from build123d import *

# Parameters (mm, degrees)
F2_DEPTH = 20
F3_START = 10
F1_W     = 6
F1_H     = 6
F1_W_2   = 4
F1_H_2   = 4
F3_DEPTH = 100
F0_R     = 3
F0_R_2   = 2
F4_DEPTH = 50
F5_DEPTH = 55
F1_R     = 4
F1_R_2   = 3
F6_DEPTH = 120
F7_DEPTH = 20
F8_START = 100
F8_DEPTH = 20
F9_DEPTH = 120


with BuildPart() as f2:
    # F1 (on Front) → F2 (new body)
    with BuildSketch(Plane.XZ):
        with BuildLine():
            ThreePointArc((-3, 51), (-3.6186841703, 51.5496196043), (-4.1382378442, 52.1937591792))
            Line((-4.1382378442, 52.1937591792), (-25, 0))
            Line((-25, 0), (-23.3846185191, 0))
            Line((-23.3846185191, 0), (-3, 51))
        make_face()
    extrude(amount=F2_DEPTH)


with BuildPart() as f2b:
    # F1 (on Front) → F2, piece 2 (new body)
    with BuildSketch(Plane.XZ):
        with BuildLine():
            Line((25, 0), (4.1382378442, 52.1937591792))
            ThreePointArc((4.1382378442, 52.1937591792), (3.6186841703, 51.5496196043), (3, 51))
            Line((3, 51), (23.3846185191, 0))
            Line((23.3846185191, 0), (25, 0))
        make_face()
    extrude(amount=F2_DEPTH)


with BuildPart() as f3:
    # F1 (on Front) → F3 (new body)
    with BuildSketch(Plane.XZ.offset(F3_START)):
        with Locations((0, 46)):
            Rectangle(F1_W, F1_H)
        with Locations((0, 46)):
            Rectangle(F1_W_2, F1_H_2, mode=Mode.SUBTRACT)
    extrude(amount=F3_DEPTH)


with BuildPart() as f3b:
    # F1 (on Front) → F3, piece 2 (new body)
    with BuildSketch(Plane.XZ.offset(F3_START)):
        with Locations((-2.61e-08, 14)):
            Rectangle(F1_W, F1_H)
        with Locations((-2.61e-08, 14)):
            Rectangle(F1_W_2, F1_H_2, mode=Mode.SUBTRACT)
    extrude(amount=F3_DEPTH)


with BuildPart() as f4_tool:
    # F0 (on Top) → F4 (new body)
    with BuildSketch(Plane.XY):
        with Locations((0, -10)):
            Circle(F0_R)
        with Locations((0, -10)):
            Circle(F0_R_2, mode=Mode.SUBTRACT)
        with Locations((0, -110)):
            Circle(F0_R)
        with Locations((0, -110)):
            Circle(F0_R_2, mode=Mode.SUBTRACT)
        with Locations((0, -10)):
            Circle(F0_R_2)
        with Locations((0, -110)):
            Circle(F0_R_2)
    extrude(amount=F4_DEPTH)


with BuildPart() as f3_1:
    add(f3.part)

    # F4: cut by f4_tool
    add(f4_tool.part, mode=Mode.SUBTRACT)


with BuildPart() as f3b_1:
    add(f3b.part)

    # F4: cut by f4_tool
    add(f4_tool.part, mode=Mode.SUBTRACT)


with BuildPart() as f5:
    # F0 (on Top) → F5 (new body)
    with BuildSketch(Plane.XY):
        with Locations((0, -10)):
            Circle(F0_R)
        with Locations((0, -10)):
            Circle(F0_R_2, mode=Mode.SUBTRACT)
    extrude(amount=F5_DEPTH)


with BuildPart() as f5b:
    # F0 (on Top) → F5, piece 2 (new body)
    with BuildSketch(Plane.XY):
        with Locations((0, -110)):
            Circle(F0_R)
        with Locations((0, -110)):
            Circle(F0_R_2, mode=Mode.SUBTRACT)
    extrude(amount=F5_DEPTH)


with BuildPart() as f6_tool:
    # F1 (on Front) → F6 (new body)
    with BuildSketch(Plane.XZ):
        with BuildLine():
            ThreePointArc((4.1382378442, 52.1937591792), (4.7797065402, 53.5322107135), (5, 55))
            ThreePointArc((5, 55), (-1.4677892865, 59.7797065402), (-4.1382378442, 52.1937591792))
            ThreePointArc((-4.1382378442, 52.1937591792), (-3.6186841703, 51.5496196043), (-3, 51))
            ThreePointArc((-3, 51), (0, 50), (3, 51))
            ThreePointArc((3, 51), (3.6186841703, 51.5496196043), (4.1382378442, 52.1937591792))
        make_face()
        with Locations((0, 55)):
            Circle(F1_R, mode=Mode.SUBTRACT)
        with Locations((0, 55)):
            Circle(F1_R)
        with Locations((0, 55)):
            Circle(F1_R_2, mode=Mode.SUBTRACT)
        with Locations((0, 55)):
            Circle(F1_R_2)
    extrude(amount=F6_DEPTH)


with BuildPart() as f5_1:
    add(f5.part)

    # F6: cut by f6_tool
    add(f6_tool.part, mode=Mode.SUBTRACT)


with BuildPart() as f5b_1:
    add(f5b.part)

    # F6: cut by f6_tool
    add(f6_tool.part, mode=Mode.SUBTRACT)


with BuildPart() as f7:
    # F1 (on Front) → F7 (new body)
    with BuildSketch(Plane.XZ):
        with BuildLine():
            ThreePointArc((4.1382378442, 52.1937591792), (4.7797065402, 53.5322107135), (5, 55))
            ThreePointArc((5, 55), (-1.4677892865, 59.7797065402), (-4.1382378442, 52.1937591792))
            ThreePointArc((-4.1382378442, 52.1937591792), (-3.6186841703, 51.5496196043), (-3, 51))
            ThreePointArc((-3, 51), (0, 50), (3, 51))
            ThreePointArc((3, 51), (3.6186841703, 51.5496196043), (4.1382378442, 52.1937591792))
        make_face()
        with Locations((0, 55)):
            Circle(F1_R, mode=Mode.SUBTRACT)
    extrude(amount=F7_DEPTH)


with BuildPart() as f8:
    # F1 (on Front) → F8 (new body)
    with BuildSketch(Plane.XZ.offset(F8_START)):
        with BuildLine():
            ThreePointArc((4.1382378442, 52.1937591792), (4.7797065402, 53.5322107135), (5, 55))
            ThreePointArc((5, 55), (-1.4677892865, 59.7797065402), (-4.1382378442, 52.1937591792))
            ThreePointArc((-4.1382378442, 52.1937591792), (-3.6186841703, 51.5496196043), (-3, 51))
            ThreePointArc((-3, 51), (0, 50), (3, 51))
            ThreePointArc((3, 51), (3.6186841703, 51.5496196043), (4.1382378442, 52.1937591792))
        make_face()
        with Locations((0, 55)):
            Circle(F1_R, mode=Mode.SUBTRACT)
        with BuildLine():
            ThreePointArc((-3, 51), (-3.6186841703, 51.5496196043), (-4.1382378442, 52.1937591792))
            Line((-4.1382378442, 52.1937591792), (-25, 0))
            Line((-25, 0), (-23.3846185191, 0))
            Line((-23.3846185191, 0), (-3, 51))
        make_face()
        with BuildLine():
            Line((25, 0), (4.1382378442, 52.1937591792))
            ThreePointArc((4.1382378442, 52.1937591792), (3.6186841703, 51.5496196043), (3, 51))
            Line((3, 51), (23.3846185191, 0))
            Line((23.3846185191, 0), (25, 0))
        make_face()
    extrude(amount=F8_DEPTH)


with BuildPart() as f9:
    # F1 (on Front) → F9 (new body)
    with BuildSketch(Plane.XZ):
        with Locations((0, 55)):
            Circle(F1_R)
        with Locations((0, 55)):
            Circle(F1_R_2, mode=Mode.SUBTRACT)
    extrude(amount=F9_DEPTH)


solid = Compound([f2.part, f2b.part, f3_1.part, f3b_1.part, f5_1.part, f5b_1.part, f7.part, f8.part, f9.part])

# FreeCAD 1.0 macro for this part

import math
import FreeCAD as App
import Part
import Sketcher

V = App.Vector
Q = App.Units.Quantity

doc = App.newDocument("Part")
body = doc.addObject("PartDesign::Body", "Body")

# Sketch on XZ plane
sketch1 = body.newObject("Sketcher::SketchObject", "Sketch")
sketch1.AttachmentSupport = (doc.getObject("XZ_Plane"), [""])
sketch1.MapMode = "FlatFace"
sketch1.addGeometry(Part.ArcOfCircle(Part.Circle(V(0, 55, 0), V(0, 0, 1), 5), math.radians(-145.857839), math.radians(-126.869898)), False)
sketch1.addGeometry(Part.LineSegment(V(-4.138238, 52.193759, 0), V(-25, 0, 0)), False)
sketch1.addGeometry(Part.LineSegment(V(-25, 0, 0), V(-23.384619, 0, 0)), False)
sketch1.addGeometry(Part.LineSegment(V(-23.384619, 0, 0), V(-3, 51, 0)), False)
sketch1.addConstraint(Sketcher.Constraint("Coincident", 0, 1, 1, 1))
sketch1.addConstraint(Sketcher.Constraint("Coincident", 1, 2, 2, 1))
sketch1.addConstraint(Sketcher.Constraint("Coincident", 2, 2, 3, 1))
sketch1.addConstraint(Sketcher.Constraint("Coincident", 3, 2, 0, 2))
sketch1.addConstraint(Sketcher.Constraint("Horizontal", 2))
sketch1.addConstraint(Sketcher.Constraint("PointOnObject", 0, 3, -2))
sketch1.addConstraint(Sketcher.Constraint("PointOnObject", 1, 2, -1))
sketch1.addConstraint(Sketcher.Constraint("Parallel", 1, 3))
sketch1.addConstraint(Sketcher.Constraint("Radius", 0, Q("5 mm")))
sketch1.addConstraint(Sketcher.Constraint("DistanceY", -1, 1, 0, 3, Q("55 mm")))
sketch1.addConstraint(Sketcher.Constraint("DistanceX", 1, 2, -1, 1, Q("25 mm")))
sketch1.addConstraint(Sketcher.Constraint("DistanceX", 3, 2, -1, 1, Q("3 mm")))
sketch1.addConstraint(Sketcher.Constraint("DistanceX", 2, 1, 2, 2, Q("1.615381 mm")))
pad1 = body.newObject("PartDesign::Pad", "Pad")
pad1.Profile = sketch1
pad1.Length = 20
body2 = doc.addObject("PartDesign::Body", "Body001")

# Sketch on XZ plane
sketch2 = body2.newObject("Sketcher::SketchObject", "Sketch001")
sketch2.AttachmentSupport = (doc.getObject("XZ_Plane001"), [""])
sketch2.MapMode = "FlatFace"
sketch2.addGeometry(Part.LineSegment(V(25, 0, 0), V(4.138238, 52.193759, 0)), False)
sketch2.addGeometry(Part.ArcOfCircle(Part.Circle(V(0, 55, 0), V(0, 0, 1), 5), math.radians(-53.130102), math.radians(-34.142161)), False)
sketch2.addGeometry(Part.LineSegment(V(3, 51, 0), V(23.384619, 0, 0)), False)
sketch2.addGeometry(Part.LineSegment(V(23.384619, 0, 0), V(25, 0, 0)), False)
sketch2.addConstraint(Sketcher.Constraint("Coincident", 0, 2, 1, 2))
sketch2.addConstraint(Sketcher.Constraint("Coincident", 1, 1, 2, 1))
sketch2.addConstraint(Sketcher.Constraint("Coincident", 2, 2, 3, 1))
sketch2.addConstraint(Sketcher.Constraint("Coincident", 3, 2, 0, 1))
sketch2.addConstraint(Sketcher.Constraint("Horizontal", 3))
sketch2.addConstraint(Sketcher.Constraint("PointOnObject", 1, 3, -2))
sketch2.addConstraint(Sketcher.Constraint("PointOnObject", 2, 2, -1))
sketch2.addConstraint(Sketcher.Constraint("Parallel", 0, 2))
sketch2.addConstraint(Sketcher.Constraint("Radius", 1, Q("5 mm")))
sketch2.addConstraint(Sketcher.Constraint("DistanceY", -1, 1, 1, 3, Q("55 mm")))
sketch2.addConstraint(Sketcher.Constraint("DistanceX", -1, 1, 1, 1, Q("3 mm")))
sketch2.addConstraint(Sketcher.Constraint("DistanceX", -1, 1, 3, 2, Q("25 mm")))
sketch2.addConstraint(Sketcher.Constraint("DistanceX", 3, 1, 3, 2, Q("1.615381 mm")))
pad2 = body2.newObject("PartDesign::Pad", "Pad001")
pad2.Profile = sketch2
pad2.Length = 20
body3 = doc.addObject("PartDesign::Body", "Body002")

# Sketch on XZ plane
sketch3 = body3.newObject("Sketcher::SketchObject", "Sketch002")
sketch3.AttachmentSupport = (doc.getObject("XZ_Plane002"), [""])
sketch3.MapMode = "FlatFace"
sketch3.AttachmentOffset = App.Placement(V(0, 0, 10), App.Rotation())
sketch3.addGeometry(Part.LineSegment(V(-3, 49, 0), V(-3, 43, 0)), False)
sketch3.addGeometry(Part.LineSegment(V(-3, 43, 0), V(3, 43, 0)), False)
sketch3.addGeometry(Part.LineSegment(V(3, 43, 0), V(3, 49, 0)), False)
sketch3.addGeometry(Part.LineSegment(V(3, 49, 0), V(-3, 49, 0)), False)
sketch3.addGeometry(Part.LineSegment(V(2, 44, 0), V(-2, 44, 0)), False)
sketch3.addGeometry(Part.LineSegment(V(-2, 44, 0), V(-2, 48, 0)), False)
sketch3.addGeometry(Part.LineSegment(V(-2, 48, 0), V(2, 48, 0)), False)
sketch3.addGeometry(Part.LineSegment(V(2, 48, 0), V(2, 44, 0)), False)
sketch3.addConstraint(Sketcher.Constraint("Coincident", 0, 2, 1, 1))
sketch3.addConstraint(Sketcher.Constraint("Coincident", 1, 2, 2, 1))
sketch3.addConstraint(Sketcher.Constraint("Coincident", 2, 2, 3, 1))
sketch3.addConstraint(Sketcher.Constraint("Coincident", 3, 2, 0, 1))
sketch3.addConstraint(Sketcher.Constraint("Coincident", 4, 2, 5, 1))
sketch3.addConstraint(Sketcher.Constraint("Coincident", 5, 2, 6, 1))
sketch3.addConstraint(Sketcher.Constraint("Coincident", 6, 2, 7, 1))
sketch3.addConstraint(Sketcher.Constraint("Coincident", 7, 2, 4, 1))
sketch3.addConstraint(Sketcher.Constraint("Vertical", 0))
sketch3.addConstraint(Sketcher.Constraint("Horizontal", 1))
sketch3.addConstraint(Sketcher.Constraint("Vertical", 2))
sketch3.addConstraint(Sketcher.Constraint("Horizontal", 3))
sketch3.addConstraint(Sketcher.Constraint("Horizontal", 4))
sketch3.addConstraint(Sketcher.Constraint("Vertical", 5))
sketch3.addConstraint(Sketcher.Constraint("Horizontal", 6))
sketch3.addConstraint(Sketcher.Constraint("Vertical", 7))
sketch3.addConstraint(Sketcher.Constraint("Equal", 3, 0))
sketch3.addConstraint(Sketcher.Constraint("Equal", 6, 5))
sketch3.addConstraint(Sketcher.Constraint("DistanceX", 1, 1, 1, 2, Q("6 mm")))
sketch3.addConstraint(Sketcher.Constraint("DistanceX", 4, 2, 4, 1, Q("4 mm")))
sketch3.addConstraint(Sketcher.Constraint("DistanceX", 0, 2, -1, 1, Q("3 mm")))
sketch3.addConstraint(Sketcher.Constraint("DistanceY", -1, 1, 0, 2, Q("43 mm")))
sketch3.addConstraint(Sketcher.Constraint("DistanceX", 4, 2, -1, 1, Q("2 mm")))
sketch3.addConstraint(Sketcher.Constraint("DistanceY", -1, 1, 4, 2, Q("44 mm")))
pad3 = body3.newObject("PartDesign::Pad", "Pad002")
pad3.Profile = sketch3
pad3.Length = 100
body4 = doc.addObject("PartDesign::Body", "Body003")

# Sketch on XZ plane
sketch4 = body4.newObject("Sketcher::SketchObject", "Sketch003")
sketch4.AttachmentSupport = (doc.getObject("XZ_Plane003"), [""])
sketch4.MapMode = "FlatFace"
sketch4.AttachmentOffset = App.Placement(V(0, 0, 10), App.Rotation())
sketch4.addGeometry(Part.LineSegment(V(-3, 17, 0), V(-3, 11, 0)), False)
sketch4.addGeometry(Part.LineSegment(V(-3, 11, 0), V(3, 11, 0)), False)
sketch4.addGeometry(Part.LineSegment(V(3, 11, 0), V(3, 17, 0)), False)
sketch4.addGeometry(Part.LineSegment(V(3, 17, 0), V(-3, 17, 0)), False)
sketch4.addGeometry(Part.LineSegment(V(2, 12, 0), V(-2, 12, 0)), False)
sketch4.addGeometry(Part.LineSegment(V(-2, 12, 0), V(-2, 16, 0)), False)
sketch4.addGeometry(Part.LineSegment(V(-2, 16, 0), V(2, 16, 0)), False)
sketch4.addGeometry(Part.LineSegment(V(2, 16, 0), V(2, 12, 0)), False)
sketch4.addConstraint(Sketcher.Constraint("Coincident", 0, 2, 1, 1))
sketch4.addConstraint(Sketcher.Constraint("Coincident", 1, 2, 2, 1))
sketch4.addConstraint(Sketcher.Constraint("Coincident", 2, 2, 3, 1))
sketch4.addConstraint(Sketcher.Constraint("Coincident", 3, 2, 0, 1))
sketch4.addConstraint(Sketcher.Constraint("Coincident", 4, 2, 5, 1))
sketch4.addConstraint(Sketcher.Constraint("Coincident", 5, 2, 6, 1))
sketch4.addConstraint(Sketcher.Constraint("Coincident", 6, 2, 7, 1))
sketch4.addConstraint(Sketcher.Constraint("Coincident", 7, 2, 4, 1))
sketch4.addConstraint(Sketcher.Constraint("Vertical", 0))
sketch4.addConstraint(Sketcher.Constraint("Horizontal", 1))
sketch4.addConstraint(Sketcher.Constraint("Vertical", 2))
sketch4.addConstraint(Sketcher.Constraint("Horizontal", 3))
sketch4.addConstraint(Sketcher.Constraint("Horizontal", 4))
sketch4.addConstraint(Sketcher.Constraint("Vertical", 5))
sketch4.addConstraint(Sketcher.Constraint("Horizontal", 6))
sketch4.addConstraint(Sketcher.Constraint("Vertical", 7))
sketch4.addConstraint(Sketcher.Constraint("Equal", 3, 0))
sketch4.addConstraint(Sketcher.Constraint("Equal", 6, 5))
sketch4.addConstraint(Sketcher.Constraint("DistanceX", 1, 1, 1, 2, Q("6 mm")))
sketch4.addConstraint(Sketcher.Constraint("DistanceX", 4, 2, 4, 1, Q("4 mm")))
sketch4.addConstraint(Sketcher.Constraint("DistanceX", 0, 2, -1, 1, Q("3 mm")))
sketch4.addConstraint(Sketcher.Constraint("DistanceY", -1, 1, 0, 2, Q("11 mm")))
sketch4.addConstraint(Sketcher.Constraint("DistanceX", 4, 2, -1, 1, Q("2 mm")))
sketch4.addConstraint(Sketcher.Constraint("DistanceY", -1, 1, 4, 2, Q("12 mm")))
pad4 = body4.newObject("PartDesign::Pad", "Pad003")
pad4.Profile = sketch4
pad4.Length = 100
body5 = doc.addObject("PartDesign::Body", "Body004")
body5.AllowCompound = True

# Sketch on XY plane
sketch5 = body5.newObject("Sketcher::SketchObject", "Sketch004")
sketch5.AttachmentSupport = (doc.getObject("XY_Plane004"), [""])
sketch5.MapMode = "FlatFace"
sketch5.addGeometry(Part.Circle(V(0, -10, 0), V(0, 0, 1), 3), False)
sketch5.addGeometry(Part.Circle(V(0, -110, 0), V(0, 0, 1), 3), False)
sketch5.addConstraint(Sketcher.Constraint("Equal", 0, 1))
sketch5.addConstraint(Sketcher.Constraint("PointOnObject", 0, 3, -2))
sketch5.addConstraint(Sketcher.Constraint("PointOnObject", 1, 3, -2))
sketch5.addConstraint(Sketcher.Constraint("Diameter", 0, Q("6 mm")))
sketch5.addConstraint(Sketcher.Constraint("DistanceY", 0, 3, -1, 1, Q("10 mm")))
sketch5.addConstraint(Sketcher.Constraint("DistanceY", 1, 3, -1, 1, Q("110 mm")))
pad5 = body5.newObject("PartDesign::Pad", "Pad004")
pad5.Profile = sketch5
pad5.Length = 50
doc.recompute()

body6 = doc.addObject("PartDesign::Body", "Body005")
body6.BaseFeature = body5
boolean = body3.newObject("PartDesign::Boolean", "Boolean")
boolean.Type = "Cut"
boolean.addObjects([body6])
doc.recompute()

boolean2 = body4.newObject("PartDesign::Boolean", "Boolean001")
boolean2.Type = "Cut"
boolean2.addObjects([body5])
body7 = doc.addObject("PartDesign::Body", "Body006")

# Sketch on XY plane
sketch6 = body7.newObject("Sketcher::SketchObject", "Sketch005")
sketch6.AttachmentSupport = (doc.getObject("XY_Plane006"), [""])
sketch6.MapMode = "FlatFace"
sketch6.addGeometry(Part.Circle(V(0, -10, 0), V(0, 0, 1), 3), False)
sketch6.addGeometry(Part.Circle(V(0, -10, 0), V(0, 0, 1), 2), False)
sketch6.addConstraint(Sketcher.Constraint("Coincident", 1, 3, 0, 3))
sketch6.addConstraint(Sketcher.Constraint("PointOnObject", 0, 3, -2))
sketch6.addConstraint(Sketcher.Constraint("Diameter", 0, Q("6 mm")))
sketch6.addConstraint(Sketcher.Constraint("Diameter", 1, Q("4 mm")))
sketch6.addConstraint(Sketcher.Constraint("DistanceY", 0, 3, -1, 1, Q("10 mm")))
pad6 = body7.newObject("PartDesign::Pad", "Pad005")
pad6.Profile = sketch6
pad6.Length = 55
body8 = doc.addObject("PartDesign::Body", "Body007")

# Sketch on XY plane
sketch7 = body8.newObject("Sketcher::SketchObject", "Sketch006")
sketch7.AttachmentSupport = (doc.getObject("XY_Plane007"), [""])
sketch7.MapMode = "FlatFace"
sketch7.addGeometry(Part.Circle(V(0, -110, 0), V(0, 0, 1), 3), False)
sketch7.addGeometry(Part.Circle(V(0, -110, 0), V(0, 0, 1), 2), False)
sketch7.addConstraint(Sketcher.Constraint("Coincident", 1, 3, 0, 3))
sketch7.addConstraint(Sketcher.Constraint("PointOnObject", 0, 3, -2))
sketch7.addConstraint(Sketcher.Constraint("Diameter", 0, Q("6 mm")))
sketch7.addConstraint(Sketcher.Constraint("Diameter", 1, Q("4 mm")))
sketch7.addConstraint(Sketcher.Constraint("DistanceY", 0, 3, -1, 1, Q("110 mm")))
pad7 = body8.newObject("PartDesign::Pad", "Pad006")
pad7.Profile = sketch7
pad7.Length = 55
body9 = doc.addObject("PartDesign::Body", "Body008")

# Sketch on XZ plane
sketch8 = body9.newObject("Sketcher::SketchObject", "Sketch007")
sketch8.AttachmentSupport = (doc.getObject("XZ_Plane008"), [""])
sketch8.MapMode = "FlatFace"
sketch8.addGeometry(Part.ArcOfCircle(Part.Circle(V(0, 55, 0), V(0, 0, 1), 5), math.radians(-34.142161), math.radians(0)), False)
sketch8.addGeometry(Part.ArcOfCircle(Part.Circle(V(0, 55, 0), V(0, 0, 1), 5), math.radians(0), math.radians(214.142161)), False)
sketch8.addGeometry(Part.ArcOfCircle(Part.Circle(V(0, 55, 0), V(0, 0, 1), 5), math.radians(-145.857839), math.radians(-126.869898)), False)
sketch8.addGeometry(Part.ArcOfCircle(Part.Circle(V(0, 55, 0), V(0, 0, 1), 5), math.radians(-126.869898), math.radians(-53.130102)), False)
sketch8.addGeometry(Part.ArcOfCircle(Part.Circle(V(0, 55, 0), V(0, 0, 1), 5), math.radians(-53.130102), math.radians(-34.142161)), False)
sketch8.addConstraint(Sketcher.Constraint("Tangent", 0, 2, 1, 1))
sketch8.addConstraint(Sketcher.Constraint("Tangent", 1, 2, 2, 1))
sketch8.addConstraint(Sketcher.Constraint("Tangent", 2, 2, 3, 1))
sketch8.addConstraint(Sketcher.Constraint("Tangent", 3, 2, 4, 1))
sketch8.addConstraint(Sketcher.Constraint("Tangent", 4, 2, 0, 1))
sketch8.addConstraint(Sketcher.Constraint("Coincident", 2, 3, 0, 3))
sketch8.addConstraint(Sketcher.Constraint("Symmetric", 2, 2, 3, 2, -2))
sketch8.addConstraint(Sketcher.Constraint("Horizontal", 4, 3, 0, 2))
sketch8.addConstraint(Sketcher.Constraint("Horizontal", 1, 2, 4, 2))
sketch8.addConstraint(Sketcher.Constraint("Radius", 0, Q("5 mm")))
sketch8.addConstraint(Sketcher.Constraint("DistanceY", -1, 1, 0, 3, Q("55 mm")))
sketch8.addConstraint(Sketcher.Constraint("DistanceX", 2, 2, -1, 1, Q("3 mm")))
sketch8.addConstraint(Sketcher.Constraint("DistanceY", -1, 1, 1, 2, Q("52.193759 mm")))
pad8 = body9.newObject("PartDesign::Pad", "Pad007")
pad8.Profile = sketch8
pad8.Length = 120
doc.recompute()

body10 = doc.addObject("PartDesign::Body", "Body009")
body10.BaseFeature = body9
boolean3 = body7.newObject("PartDesign::Boolean", "Boolean002")
boolean3.Type = "Cut"
boolean3.addObjects([body10])
doc.recompute()

boolean4 = body8.newObject("PartDesign::Boolean", "Boolean003")
boolean4.Type = "Cut"
boolean4.addObjects([body9])
body11 = doc.addObject("PartDesign::Body", "Body010")

# Sketch on XZ plane
sketch9 = body11.newObject("Sketcher::SketchObject", "Sketch008")
sketch9.AttachmentSupport = (doc.getObject("XZ_Plane010"), [""])
sketch9.MapMode = "FlatFace"
sketch9.addGeometry(Part.ArcOfCircle(Part.Circle(V(0, 55, 0), V(0, 0, 1), 5), math.radians(-34.142161), math.radians(0)), False)
sketch9.addGeometry(Part.ArcOfCircle(Part.Circle(V(0, 55, 0), V(0, 0, 1), 5), math.radians(0), math.radians(214.142161)), False)
sketch9.addGeometry(Part.ArcOfCircle(Part.Circle(V(0, 55, 0), V(0, 0, 1), 5), math.radians(-145.857839), math.radians(-126.869898)), False)
sketch9.addGeometry(Part.ArcOfCircle(Part.Circle(V(0, 55, 0), V(0, 0, 1), 5), math.radians(-126.869898), math.radians(-53.130102)), False)
sketch9.addGeometry(Part.ArcOfCircle(Part.Circle(V(0, 55, 0), V(0, 0, 1), 5), math.radians(-53.130102), math.radians(-34.142161)), False)
sketch9.addGeometry(Part.Circle(V(0, 55, 0), V(0, 0, 1), 4), False)
sketch9.addConstraint(Sketcher.Constraint("Tangent", 0, 2, 1, 1))
sketch9.addConstraint(Sketcher.Constraint("Tangent", 1, 2, 2, 1))
sketch9.addConstraint(Sketcher.Constraint("Tangent", 2, 2, 3, 1))
sketch9.addConstraint(Sketcher.Constraint("Tangent", 3, 2, 4, 1))
sketch9.addConstraint(Sketcher.Constraint("Tangent", 4, 2, 0, 1))
sketch9.addConstraint(Sketcher.Constraint("Coincident", 2, 3, 0, 3))
sketch9.addConstraint(Sketcher.Constraint("Coincident", 5, 3, 0, 3))
sketch9.addConstraint(Sketcher.Constraint("Symmetric", 2, 2, 3, 2, -2))
sketch9.addConstraint(Sketcher.Constraint("Horizontal", 5, 3, 0, 2))
sketch9.addConstraint(Sketcher.Constraint("Horizontal", 1, 2, 4, 2))
sketch9.addConstraint(Sketcher.Constraint("Diameter", 5, Q("8 mm")))
sketch9.addConstraint(Sketcher.Constraint("Radius", 0, Q("5 mm")))
sketch9.addConstraint(Sketcher.Constraint("DistanceY", -1, 1, 0, 3, Q("55 mm")))
sketch9.addConstraint(Sketcher.Constraint("DistanceX", 2, 2, -1, 1, Q("3 mm")))
sketch9.addConstraint(Sketcher.Constraint("DistanceY", -1, 1, 1, 2, Q("52.193759 mm")))
pad9 = body11.newObject("PartDesign::Pad", "Pad008")
pad9.Profile = sketch9
pad9.Length = 20
body12 = doc.addObject("PartDesign::Body", "Body011")

# Sketch on XZ plane
sketch10 = body12.newObject("Sketcher::SketchObject", "Sketch009")
sketch10.AttachmentSupport = (doc.getObject("XZ_Plane011"), [""])
sketch10.MapMode = "FlatFace"
sketch10.AttachmentOffset = App.Placement(V(0, 0, 100), App.Rotation())
sketch10.addGeometry(Part.ArcOfCircle(Part.Circle(V(0, 55, 0), V(0, 0, 1), 5), math.radians(-34.142161), math.radians(0)), False)
sketch10.addGeometry(Part.ArcOfCircle(Part.Circle(V(0, 55, 0), V(0, 0, 1), 5), math.radians(0), math.radians(214.142161)), False)
sketch10.addGeometry(Part.LineSegment(V(-4.138238, 52.193759, 0), V(-25, 0, 0)), False)
sketch10.addGeometry(Part.LineSegment(V(-25, 0, 0), V(-23.384619, 0, 0)), False)
sketch10.addGeometry(Part.LineSegment(V(-23.384619, 0, 0), V(-3, 51, 0)), False)
sketch10.addGeometry(Part.ArcOfCircle(Part.Circle(V(0, 55, 0), V(0, 0, 1), 5), math.radians(-126.869898), math.radians(-53.130102)), False)
sketch10.addGeometry(Part.LineSegment(V(3, 51, 0), V(23.384619, 0, 0)), False)
sketch10.addGeometry(Part.LineSegment(V(23.384619, 0, 0), V(25, 0, 0)), False)
sketch10.addGeometry(Part.LineSegment(V(25, 0, 0), V(4.138238, 52.193759, 0)), False)
sketch10.addGeometry(Part.Circle(V(0, 55, 0), V(0, 0, 1), 4), False)
sketch10.addConstraint(Sketcher.Constraint("Tangent", 0, 2, 1, 1))
sketch10.addConstraint(Sketcher.Constraint("Coincident", 1, 2, 2, 1))
sketch10.addConstraint(Sketcher.Constraint("Coincident", 2, 2, 3, 1))
sketch10.addConstraint(Sketcher.Constraint("Coincident", 3, 2, 4, 1))
sketch10.addConstraint(Sketcher.Constraint("Coincident", 4, 2, 5, 1))
sketch10.addConstraint(Sketcher.Constraint("Coincident", 5, 2, 6, 1))
sketch10.addConstraint(Sketcher.Constraint("Coincident", 6, 2, 7, 1))
sketch10.addConstraint(Sketcher.Constraint("Coincident", 7, 2, 8, 1))
sketch10.addConstraint(Sketcher.Constraint("Coincident", 8, 2, 0, 1))
sketch10.addConstraint(Sketcher.Constraint("Horizontal", 3))
sketch10.addConstraint(Sketcher.Constraint("Horizontal", 7))
sketch10.addConstraint(Sketcher.Constraint("Coincident", 5, 3, 0, 3))
sketch10.addConstraint(Sketcher.Constraint("Coincident", 9, 3, 0, 3))
sketch10.addConstraint(Sketcher.Constraint("Equal", 0, 1))
sketch10.addConstraint(Sketcher.Constraint("Equal", 1, 5))
sketch10.addConstraint(Sketcher.Constraint("Symmetric", 3, 2, 6, 2, -1, 1))
sketch10.addConstraint(Sketcher.Constraint("Symmetric", 4, 2, 5, 2, -2))
sketch10.addConstraint(Sketcher.Constraint("Symmetric", 2, 2, 7, 2, -2))
sketch10.addConstraint(Sketcher.Constraint("Parallel", 2, 4))
sketch10.addConstraint(Sketcher.Constraint("Parallel", 6, 8))
sketch10.addConstraint(Sketcher.Constraint("Horizontal", 9, 3, 0, 2))
sketch10.addConstraint(Sketcher.Constraint("Diameter", 9, Q("8 mm")))
sketch10.addConstraint(Sketcher.Constraint("Radius", 0, Q("5 mm")))
sketch10.addConstraint(Sketcher.Constraint("DistanceY", -1, 1, 0, 3, Q("55 mm")))
sketch10.addConstraint(Sketcher.Constraint("DistanceX", 2, 2, -1, 1, Q("25 mm")))
sketch10.addConstraint(Sketcher.Constraint("DistanceX", 4, 2, -1, 1, Q("3 mm")))
sketch10.addConstraint(Sketcher.Constraint("DistanceX", 3, 1, 3, 2, Q("1.615381 mm")))
pad10 = body12.newObject("PartDesign::Pad", "Pad009")
pad10.Profile = sketch10
pad10.Length = 20
body13 = doc.addObject("PartDesign::Body", "Body012")

# Sketch on XZ plane
sketch11 = body13.newObject("Sketcher::SketchObject", "Sketch010")
sketch11.AttachmentSupport = (doc.getObject("XZ_Plane012"), [""])
sketch11.MapMode = "FlatFace"
sketch11.addGeometry(Part.Circle(V(0, 55, 0), V(0, 0, 1), 4), False)
sketch11.addGeometry(Part.Circle(V(0, 55, 0), V(0, 0, 1), 3), False)
sketch11.addConstraint(Sketcher.Constraint("Coincident", 1, 3, 0, 3))
sketch11.addConstraint(Sketcher.Constraint("PointOnObject", 0, 3, -2))
sketch11.addConstraint(Sketcher.Constraint("Diameter", 0, Q("8 mm")))
sketch11.addConstraint(Sketcher.Constraint("Diameter", 1, Q("6 mm")))
sketch11.addConstraint(Sketcher.Constraint("DistanceY", -1, 1, 0, 3, Q("55 mm")))
pad11 = body13.newObject("PartDesign::Pad", "Pad010")
pad11.Profile = sketch11
pad11.Length = 120

doc.recompute()
